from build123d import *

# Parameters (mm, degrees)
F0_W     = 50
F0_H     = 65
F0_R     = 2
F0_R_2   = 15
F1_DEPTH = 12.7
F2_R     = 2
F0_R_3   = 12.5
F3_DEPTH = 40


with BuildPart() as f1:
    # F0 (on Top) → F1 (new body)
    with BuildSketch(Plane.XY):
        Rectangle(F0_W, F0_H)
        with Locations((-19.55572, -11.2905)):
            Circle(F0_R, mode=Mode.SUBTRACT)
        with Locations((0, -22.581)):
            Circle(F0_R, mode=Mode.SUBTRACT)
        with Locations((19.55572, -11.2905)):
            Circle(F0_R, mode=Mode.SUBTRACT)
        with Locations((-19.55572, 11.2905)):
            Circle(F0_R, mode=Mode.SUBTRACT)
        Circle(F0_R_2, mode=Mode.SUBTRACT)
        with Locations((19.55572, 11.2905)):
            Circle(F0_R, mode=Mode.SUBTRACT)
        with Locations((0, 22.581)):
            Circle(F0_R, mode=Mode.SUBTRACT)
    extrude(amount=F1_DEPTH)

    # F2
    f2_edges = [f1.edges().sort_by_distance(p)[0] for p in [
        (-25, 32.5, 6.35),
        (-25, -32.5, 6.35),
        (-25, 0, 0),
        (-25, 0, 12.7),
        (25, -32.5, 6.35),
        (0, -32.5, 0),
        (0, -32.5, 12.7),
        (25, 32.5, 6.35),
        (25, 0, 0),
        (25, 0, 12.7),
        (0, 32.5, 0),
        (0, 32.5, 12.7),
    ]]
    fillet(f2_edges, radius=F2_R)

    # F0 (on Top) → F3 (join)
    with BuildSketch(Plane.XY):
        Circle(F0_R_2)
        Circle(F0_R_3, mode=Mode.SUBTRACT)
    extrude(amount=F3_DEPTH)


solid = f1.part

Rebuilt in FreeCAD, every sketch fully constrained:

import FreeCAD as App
import Part
import Sketcher
Q = App.Units.Quantity


def edges_at(feature, points):
    """Names of the edges that pass closest to the given points."""
    edges = feature.Shape.Edges
    near = lambda p: min(range(len(edges)), key=lambda i: edges[i].distToShape(Part.Vertex(*p))[0])
    return sorted({f"Edge{near(p) + 1}" for p in points})


def add_polygon(sketch, points):
    """Adds a closed chain of lines whose ends are joined by coincident constraints."""
    first, n = sketch.GeometryCount, len(points)
    for a, b in zip(points, points[1:] + points[:1]):
        sketch.addGeometry(Part.LineSegment(App.Vector(*a, 0), App.Vector(*b, 0)), False)
    for i in range(n):
        sketch.addConstraint(Sketcher.Constraint("Coincident", first + i, 2, first + (i + 1) % n, 1))

doc = App.newDocument("Part")
body = doc.addObject("PartDesign::Body", "Body")

# Sketch on XY plane
sketch1 = body.newObject("Sketcher::SketchObject", "Sketch")
sketch1.AttachmentSupport = (doc.getObject("XY_Plane"), [""])
sketch1.MapMode = "FlatFace"
add_polygon(sketch1, [(-25, 32.5), (-25, -32.5), (25, -32.5), (25, 32.5)])  # lines 0-3
sketch1.addGeometry(Part.Circle(App.Vector(-19.55572, -11.2905, 0), App.Vector(0, 0, 1), 2), False)  # 4
sketch1.addGeometry(Part.Circle(App.Vector(0, -22.581, 0), App.Vector(0, 0, 1), 2), False)  # 5
sketch1.addGeometry(Part.Circle(App.Vector(19.55572, -11.2905, 0), App.Vector(0, 0, 1), 2), False)  # 6
sketch1.addGeometry(Part.Circle(App.Vector(-19.55572, 11.2905, 0), App.Vector(0, 0, 1), 2), False)  # 7
sketch1.addGeometry(Part.Circle(App.Vector(0, 0, 0), App.Vector(0, 0, 1), 15), False)  # 8
sketch1.addGeometry(Part.Circle(App.Vector(19.55572, 11.2905, 0), App.Vector(0, 0, 1), 2), False)  # 9
sketch1.addGeometry(Part.Circle(App.Vector(0, 22.581, 0), App.Vector(0, 0, 1), 2), False)  # 10
sketch1.addConstraint(Sketcher.Constraint("Vertical", 0))
sketch1.addConstraint(Sketcher.Constraint("Horizontal", 1))
sketch1.addConstraint(Sketcher.Constraint("Vertical", 2))
sketch1.addConstraint(Sketcher.Constraint("Horizontal", 3))
sketch1.addConstraint(Sketcher.Constraint("Coincident", 8, 3, -1, 1))
sketch1.addConstraint(Sketcher.Constraint("Equal", 4, 5))
sketch1.addConstraint(Sketcher.Constraint("Equal", 5, 6))
sketch1.addConstraint(Sketcher.Constraint("Equal", 6, 7))
sketch1.addConstraint(Sketcher.Constraint("Equal", 7, 9))
sketch1.addConstraint(Sketcher.Constraint("Equal", 9, 10))
sketch1.addConstraint(Sketcher.Constraint("Symmetric", 6, 3, 7, 3, -1, 1))
sketch1.addConstraint(Sketcher.Constraint("Symmetric", 4, 3, 9, 3, -1, 1))
sketch1.addConstraint(Sketcher.Constraint("Symmetric", 5, 3, 10, 3, -1, 1))
sketch1.addConstraint(Sketcher.Constraint("Symmetric", 0, 2, 2, 2, -1, 1))
sketch1.addConstraint(Sketcher.Constraint("Symmetric", 4, 3, 6, 3, -2))
sketch1.addConstraint(Sketcher.Constraint("PointOnObject", 5, 3, -2))
sketch1.addConstraint(Sketcher.Constraint("Diameter", 4, Q("4 mm")))
sketch1.addConstraint(Sketcher.Constraint("Diameter", 8, Q("30 mm")))
sketch1.addConstraint(Sketcher.Constraint("DistanceX", 1, 1, 1, 2, Q("50 mm")))
sketch1.addConstraint(Sketcher.Constraint("DistanceY", 0, 2, 0, 1, Q("65 mm")))
sketch1.addConstraint(Sketcher.Constraint("DistanceY", 5, 3, -1, 1, Q("22.581 mm")))
sketch1.addConstraint(Sketcher.Constraint("DistanceY", 4, 3, 7, 3, Q("22.581 mm")))
sketch1.addConstraint(Sketcher.Constraint("DistanceX", 4, 3, -1, 1, Q("19.55572 mm")))
pad1 = body.newObject("PartDesign::Pad", "Pad")
pad1.Profile = sketch1
pad1.Length = 12.7
doc.recompute()

fillet = body.newObject("PartDesign::Fillet", "Fillet")
fillet.Base = (pad1, edges_at(pad1, [
    (-25, 32.5, 6.35),
    (-25, -32.5, 6.35),
    (-25, 0, 0),
    (-25, 0, 12.7),
    (25, -32.5, 6.35),
    (0, -32.5, 0),
    (0, -32.5, 12.7),
    (25, 32.5, 6.35),
    (25, 0, 0),
    (25, 0, 12.7),
    (0, 32.5, 0),
    (0, 32.5, 12.7),
]))
fillet.Radius = 2

# Sketch on XY plane
sketch2 = body.newObject("Sketcher::SketchObject", "Sketch001")
sketch2.AttachmentSupport = (doc.getObject("XY_Plane"), [""])
sketch2.MapMode = "FlatFace"
sketch2.addGeometry(Part.Circle(App.Vector(0, 0, 0), App.Vector(0, 0, 1), 15), False)
sketch2.addGeometry(Part.Circle(App.Vector(0, 0, 0), App.Vector(0, 0, 1), 12.5), False)
sketch2.addConstraint(Sketcher.Constraint("Coincident", 0, 3, -1, 1))
sketch2.addConstraint(Sketcher.Constraint("Coincident", 1, 3, -1, 1))
sketch2.addConstraint(Sketcher.Constraint("Diameter", 0, Q("30 mm")))
sketch2.addConstraint(Sketcher.Constraint("Diameter", 1, Q("25 mm")))
pad2 = body.newObject("PartDesign::Pad", "Pad001")
pad2.Profile = sketch2
pad2.Length = 40

doc.recompute()
